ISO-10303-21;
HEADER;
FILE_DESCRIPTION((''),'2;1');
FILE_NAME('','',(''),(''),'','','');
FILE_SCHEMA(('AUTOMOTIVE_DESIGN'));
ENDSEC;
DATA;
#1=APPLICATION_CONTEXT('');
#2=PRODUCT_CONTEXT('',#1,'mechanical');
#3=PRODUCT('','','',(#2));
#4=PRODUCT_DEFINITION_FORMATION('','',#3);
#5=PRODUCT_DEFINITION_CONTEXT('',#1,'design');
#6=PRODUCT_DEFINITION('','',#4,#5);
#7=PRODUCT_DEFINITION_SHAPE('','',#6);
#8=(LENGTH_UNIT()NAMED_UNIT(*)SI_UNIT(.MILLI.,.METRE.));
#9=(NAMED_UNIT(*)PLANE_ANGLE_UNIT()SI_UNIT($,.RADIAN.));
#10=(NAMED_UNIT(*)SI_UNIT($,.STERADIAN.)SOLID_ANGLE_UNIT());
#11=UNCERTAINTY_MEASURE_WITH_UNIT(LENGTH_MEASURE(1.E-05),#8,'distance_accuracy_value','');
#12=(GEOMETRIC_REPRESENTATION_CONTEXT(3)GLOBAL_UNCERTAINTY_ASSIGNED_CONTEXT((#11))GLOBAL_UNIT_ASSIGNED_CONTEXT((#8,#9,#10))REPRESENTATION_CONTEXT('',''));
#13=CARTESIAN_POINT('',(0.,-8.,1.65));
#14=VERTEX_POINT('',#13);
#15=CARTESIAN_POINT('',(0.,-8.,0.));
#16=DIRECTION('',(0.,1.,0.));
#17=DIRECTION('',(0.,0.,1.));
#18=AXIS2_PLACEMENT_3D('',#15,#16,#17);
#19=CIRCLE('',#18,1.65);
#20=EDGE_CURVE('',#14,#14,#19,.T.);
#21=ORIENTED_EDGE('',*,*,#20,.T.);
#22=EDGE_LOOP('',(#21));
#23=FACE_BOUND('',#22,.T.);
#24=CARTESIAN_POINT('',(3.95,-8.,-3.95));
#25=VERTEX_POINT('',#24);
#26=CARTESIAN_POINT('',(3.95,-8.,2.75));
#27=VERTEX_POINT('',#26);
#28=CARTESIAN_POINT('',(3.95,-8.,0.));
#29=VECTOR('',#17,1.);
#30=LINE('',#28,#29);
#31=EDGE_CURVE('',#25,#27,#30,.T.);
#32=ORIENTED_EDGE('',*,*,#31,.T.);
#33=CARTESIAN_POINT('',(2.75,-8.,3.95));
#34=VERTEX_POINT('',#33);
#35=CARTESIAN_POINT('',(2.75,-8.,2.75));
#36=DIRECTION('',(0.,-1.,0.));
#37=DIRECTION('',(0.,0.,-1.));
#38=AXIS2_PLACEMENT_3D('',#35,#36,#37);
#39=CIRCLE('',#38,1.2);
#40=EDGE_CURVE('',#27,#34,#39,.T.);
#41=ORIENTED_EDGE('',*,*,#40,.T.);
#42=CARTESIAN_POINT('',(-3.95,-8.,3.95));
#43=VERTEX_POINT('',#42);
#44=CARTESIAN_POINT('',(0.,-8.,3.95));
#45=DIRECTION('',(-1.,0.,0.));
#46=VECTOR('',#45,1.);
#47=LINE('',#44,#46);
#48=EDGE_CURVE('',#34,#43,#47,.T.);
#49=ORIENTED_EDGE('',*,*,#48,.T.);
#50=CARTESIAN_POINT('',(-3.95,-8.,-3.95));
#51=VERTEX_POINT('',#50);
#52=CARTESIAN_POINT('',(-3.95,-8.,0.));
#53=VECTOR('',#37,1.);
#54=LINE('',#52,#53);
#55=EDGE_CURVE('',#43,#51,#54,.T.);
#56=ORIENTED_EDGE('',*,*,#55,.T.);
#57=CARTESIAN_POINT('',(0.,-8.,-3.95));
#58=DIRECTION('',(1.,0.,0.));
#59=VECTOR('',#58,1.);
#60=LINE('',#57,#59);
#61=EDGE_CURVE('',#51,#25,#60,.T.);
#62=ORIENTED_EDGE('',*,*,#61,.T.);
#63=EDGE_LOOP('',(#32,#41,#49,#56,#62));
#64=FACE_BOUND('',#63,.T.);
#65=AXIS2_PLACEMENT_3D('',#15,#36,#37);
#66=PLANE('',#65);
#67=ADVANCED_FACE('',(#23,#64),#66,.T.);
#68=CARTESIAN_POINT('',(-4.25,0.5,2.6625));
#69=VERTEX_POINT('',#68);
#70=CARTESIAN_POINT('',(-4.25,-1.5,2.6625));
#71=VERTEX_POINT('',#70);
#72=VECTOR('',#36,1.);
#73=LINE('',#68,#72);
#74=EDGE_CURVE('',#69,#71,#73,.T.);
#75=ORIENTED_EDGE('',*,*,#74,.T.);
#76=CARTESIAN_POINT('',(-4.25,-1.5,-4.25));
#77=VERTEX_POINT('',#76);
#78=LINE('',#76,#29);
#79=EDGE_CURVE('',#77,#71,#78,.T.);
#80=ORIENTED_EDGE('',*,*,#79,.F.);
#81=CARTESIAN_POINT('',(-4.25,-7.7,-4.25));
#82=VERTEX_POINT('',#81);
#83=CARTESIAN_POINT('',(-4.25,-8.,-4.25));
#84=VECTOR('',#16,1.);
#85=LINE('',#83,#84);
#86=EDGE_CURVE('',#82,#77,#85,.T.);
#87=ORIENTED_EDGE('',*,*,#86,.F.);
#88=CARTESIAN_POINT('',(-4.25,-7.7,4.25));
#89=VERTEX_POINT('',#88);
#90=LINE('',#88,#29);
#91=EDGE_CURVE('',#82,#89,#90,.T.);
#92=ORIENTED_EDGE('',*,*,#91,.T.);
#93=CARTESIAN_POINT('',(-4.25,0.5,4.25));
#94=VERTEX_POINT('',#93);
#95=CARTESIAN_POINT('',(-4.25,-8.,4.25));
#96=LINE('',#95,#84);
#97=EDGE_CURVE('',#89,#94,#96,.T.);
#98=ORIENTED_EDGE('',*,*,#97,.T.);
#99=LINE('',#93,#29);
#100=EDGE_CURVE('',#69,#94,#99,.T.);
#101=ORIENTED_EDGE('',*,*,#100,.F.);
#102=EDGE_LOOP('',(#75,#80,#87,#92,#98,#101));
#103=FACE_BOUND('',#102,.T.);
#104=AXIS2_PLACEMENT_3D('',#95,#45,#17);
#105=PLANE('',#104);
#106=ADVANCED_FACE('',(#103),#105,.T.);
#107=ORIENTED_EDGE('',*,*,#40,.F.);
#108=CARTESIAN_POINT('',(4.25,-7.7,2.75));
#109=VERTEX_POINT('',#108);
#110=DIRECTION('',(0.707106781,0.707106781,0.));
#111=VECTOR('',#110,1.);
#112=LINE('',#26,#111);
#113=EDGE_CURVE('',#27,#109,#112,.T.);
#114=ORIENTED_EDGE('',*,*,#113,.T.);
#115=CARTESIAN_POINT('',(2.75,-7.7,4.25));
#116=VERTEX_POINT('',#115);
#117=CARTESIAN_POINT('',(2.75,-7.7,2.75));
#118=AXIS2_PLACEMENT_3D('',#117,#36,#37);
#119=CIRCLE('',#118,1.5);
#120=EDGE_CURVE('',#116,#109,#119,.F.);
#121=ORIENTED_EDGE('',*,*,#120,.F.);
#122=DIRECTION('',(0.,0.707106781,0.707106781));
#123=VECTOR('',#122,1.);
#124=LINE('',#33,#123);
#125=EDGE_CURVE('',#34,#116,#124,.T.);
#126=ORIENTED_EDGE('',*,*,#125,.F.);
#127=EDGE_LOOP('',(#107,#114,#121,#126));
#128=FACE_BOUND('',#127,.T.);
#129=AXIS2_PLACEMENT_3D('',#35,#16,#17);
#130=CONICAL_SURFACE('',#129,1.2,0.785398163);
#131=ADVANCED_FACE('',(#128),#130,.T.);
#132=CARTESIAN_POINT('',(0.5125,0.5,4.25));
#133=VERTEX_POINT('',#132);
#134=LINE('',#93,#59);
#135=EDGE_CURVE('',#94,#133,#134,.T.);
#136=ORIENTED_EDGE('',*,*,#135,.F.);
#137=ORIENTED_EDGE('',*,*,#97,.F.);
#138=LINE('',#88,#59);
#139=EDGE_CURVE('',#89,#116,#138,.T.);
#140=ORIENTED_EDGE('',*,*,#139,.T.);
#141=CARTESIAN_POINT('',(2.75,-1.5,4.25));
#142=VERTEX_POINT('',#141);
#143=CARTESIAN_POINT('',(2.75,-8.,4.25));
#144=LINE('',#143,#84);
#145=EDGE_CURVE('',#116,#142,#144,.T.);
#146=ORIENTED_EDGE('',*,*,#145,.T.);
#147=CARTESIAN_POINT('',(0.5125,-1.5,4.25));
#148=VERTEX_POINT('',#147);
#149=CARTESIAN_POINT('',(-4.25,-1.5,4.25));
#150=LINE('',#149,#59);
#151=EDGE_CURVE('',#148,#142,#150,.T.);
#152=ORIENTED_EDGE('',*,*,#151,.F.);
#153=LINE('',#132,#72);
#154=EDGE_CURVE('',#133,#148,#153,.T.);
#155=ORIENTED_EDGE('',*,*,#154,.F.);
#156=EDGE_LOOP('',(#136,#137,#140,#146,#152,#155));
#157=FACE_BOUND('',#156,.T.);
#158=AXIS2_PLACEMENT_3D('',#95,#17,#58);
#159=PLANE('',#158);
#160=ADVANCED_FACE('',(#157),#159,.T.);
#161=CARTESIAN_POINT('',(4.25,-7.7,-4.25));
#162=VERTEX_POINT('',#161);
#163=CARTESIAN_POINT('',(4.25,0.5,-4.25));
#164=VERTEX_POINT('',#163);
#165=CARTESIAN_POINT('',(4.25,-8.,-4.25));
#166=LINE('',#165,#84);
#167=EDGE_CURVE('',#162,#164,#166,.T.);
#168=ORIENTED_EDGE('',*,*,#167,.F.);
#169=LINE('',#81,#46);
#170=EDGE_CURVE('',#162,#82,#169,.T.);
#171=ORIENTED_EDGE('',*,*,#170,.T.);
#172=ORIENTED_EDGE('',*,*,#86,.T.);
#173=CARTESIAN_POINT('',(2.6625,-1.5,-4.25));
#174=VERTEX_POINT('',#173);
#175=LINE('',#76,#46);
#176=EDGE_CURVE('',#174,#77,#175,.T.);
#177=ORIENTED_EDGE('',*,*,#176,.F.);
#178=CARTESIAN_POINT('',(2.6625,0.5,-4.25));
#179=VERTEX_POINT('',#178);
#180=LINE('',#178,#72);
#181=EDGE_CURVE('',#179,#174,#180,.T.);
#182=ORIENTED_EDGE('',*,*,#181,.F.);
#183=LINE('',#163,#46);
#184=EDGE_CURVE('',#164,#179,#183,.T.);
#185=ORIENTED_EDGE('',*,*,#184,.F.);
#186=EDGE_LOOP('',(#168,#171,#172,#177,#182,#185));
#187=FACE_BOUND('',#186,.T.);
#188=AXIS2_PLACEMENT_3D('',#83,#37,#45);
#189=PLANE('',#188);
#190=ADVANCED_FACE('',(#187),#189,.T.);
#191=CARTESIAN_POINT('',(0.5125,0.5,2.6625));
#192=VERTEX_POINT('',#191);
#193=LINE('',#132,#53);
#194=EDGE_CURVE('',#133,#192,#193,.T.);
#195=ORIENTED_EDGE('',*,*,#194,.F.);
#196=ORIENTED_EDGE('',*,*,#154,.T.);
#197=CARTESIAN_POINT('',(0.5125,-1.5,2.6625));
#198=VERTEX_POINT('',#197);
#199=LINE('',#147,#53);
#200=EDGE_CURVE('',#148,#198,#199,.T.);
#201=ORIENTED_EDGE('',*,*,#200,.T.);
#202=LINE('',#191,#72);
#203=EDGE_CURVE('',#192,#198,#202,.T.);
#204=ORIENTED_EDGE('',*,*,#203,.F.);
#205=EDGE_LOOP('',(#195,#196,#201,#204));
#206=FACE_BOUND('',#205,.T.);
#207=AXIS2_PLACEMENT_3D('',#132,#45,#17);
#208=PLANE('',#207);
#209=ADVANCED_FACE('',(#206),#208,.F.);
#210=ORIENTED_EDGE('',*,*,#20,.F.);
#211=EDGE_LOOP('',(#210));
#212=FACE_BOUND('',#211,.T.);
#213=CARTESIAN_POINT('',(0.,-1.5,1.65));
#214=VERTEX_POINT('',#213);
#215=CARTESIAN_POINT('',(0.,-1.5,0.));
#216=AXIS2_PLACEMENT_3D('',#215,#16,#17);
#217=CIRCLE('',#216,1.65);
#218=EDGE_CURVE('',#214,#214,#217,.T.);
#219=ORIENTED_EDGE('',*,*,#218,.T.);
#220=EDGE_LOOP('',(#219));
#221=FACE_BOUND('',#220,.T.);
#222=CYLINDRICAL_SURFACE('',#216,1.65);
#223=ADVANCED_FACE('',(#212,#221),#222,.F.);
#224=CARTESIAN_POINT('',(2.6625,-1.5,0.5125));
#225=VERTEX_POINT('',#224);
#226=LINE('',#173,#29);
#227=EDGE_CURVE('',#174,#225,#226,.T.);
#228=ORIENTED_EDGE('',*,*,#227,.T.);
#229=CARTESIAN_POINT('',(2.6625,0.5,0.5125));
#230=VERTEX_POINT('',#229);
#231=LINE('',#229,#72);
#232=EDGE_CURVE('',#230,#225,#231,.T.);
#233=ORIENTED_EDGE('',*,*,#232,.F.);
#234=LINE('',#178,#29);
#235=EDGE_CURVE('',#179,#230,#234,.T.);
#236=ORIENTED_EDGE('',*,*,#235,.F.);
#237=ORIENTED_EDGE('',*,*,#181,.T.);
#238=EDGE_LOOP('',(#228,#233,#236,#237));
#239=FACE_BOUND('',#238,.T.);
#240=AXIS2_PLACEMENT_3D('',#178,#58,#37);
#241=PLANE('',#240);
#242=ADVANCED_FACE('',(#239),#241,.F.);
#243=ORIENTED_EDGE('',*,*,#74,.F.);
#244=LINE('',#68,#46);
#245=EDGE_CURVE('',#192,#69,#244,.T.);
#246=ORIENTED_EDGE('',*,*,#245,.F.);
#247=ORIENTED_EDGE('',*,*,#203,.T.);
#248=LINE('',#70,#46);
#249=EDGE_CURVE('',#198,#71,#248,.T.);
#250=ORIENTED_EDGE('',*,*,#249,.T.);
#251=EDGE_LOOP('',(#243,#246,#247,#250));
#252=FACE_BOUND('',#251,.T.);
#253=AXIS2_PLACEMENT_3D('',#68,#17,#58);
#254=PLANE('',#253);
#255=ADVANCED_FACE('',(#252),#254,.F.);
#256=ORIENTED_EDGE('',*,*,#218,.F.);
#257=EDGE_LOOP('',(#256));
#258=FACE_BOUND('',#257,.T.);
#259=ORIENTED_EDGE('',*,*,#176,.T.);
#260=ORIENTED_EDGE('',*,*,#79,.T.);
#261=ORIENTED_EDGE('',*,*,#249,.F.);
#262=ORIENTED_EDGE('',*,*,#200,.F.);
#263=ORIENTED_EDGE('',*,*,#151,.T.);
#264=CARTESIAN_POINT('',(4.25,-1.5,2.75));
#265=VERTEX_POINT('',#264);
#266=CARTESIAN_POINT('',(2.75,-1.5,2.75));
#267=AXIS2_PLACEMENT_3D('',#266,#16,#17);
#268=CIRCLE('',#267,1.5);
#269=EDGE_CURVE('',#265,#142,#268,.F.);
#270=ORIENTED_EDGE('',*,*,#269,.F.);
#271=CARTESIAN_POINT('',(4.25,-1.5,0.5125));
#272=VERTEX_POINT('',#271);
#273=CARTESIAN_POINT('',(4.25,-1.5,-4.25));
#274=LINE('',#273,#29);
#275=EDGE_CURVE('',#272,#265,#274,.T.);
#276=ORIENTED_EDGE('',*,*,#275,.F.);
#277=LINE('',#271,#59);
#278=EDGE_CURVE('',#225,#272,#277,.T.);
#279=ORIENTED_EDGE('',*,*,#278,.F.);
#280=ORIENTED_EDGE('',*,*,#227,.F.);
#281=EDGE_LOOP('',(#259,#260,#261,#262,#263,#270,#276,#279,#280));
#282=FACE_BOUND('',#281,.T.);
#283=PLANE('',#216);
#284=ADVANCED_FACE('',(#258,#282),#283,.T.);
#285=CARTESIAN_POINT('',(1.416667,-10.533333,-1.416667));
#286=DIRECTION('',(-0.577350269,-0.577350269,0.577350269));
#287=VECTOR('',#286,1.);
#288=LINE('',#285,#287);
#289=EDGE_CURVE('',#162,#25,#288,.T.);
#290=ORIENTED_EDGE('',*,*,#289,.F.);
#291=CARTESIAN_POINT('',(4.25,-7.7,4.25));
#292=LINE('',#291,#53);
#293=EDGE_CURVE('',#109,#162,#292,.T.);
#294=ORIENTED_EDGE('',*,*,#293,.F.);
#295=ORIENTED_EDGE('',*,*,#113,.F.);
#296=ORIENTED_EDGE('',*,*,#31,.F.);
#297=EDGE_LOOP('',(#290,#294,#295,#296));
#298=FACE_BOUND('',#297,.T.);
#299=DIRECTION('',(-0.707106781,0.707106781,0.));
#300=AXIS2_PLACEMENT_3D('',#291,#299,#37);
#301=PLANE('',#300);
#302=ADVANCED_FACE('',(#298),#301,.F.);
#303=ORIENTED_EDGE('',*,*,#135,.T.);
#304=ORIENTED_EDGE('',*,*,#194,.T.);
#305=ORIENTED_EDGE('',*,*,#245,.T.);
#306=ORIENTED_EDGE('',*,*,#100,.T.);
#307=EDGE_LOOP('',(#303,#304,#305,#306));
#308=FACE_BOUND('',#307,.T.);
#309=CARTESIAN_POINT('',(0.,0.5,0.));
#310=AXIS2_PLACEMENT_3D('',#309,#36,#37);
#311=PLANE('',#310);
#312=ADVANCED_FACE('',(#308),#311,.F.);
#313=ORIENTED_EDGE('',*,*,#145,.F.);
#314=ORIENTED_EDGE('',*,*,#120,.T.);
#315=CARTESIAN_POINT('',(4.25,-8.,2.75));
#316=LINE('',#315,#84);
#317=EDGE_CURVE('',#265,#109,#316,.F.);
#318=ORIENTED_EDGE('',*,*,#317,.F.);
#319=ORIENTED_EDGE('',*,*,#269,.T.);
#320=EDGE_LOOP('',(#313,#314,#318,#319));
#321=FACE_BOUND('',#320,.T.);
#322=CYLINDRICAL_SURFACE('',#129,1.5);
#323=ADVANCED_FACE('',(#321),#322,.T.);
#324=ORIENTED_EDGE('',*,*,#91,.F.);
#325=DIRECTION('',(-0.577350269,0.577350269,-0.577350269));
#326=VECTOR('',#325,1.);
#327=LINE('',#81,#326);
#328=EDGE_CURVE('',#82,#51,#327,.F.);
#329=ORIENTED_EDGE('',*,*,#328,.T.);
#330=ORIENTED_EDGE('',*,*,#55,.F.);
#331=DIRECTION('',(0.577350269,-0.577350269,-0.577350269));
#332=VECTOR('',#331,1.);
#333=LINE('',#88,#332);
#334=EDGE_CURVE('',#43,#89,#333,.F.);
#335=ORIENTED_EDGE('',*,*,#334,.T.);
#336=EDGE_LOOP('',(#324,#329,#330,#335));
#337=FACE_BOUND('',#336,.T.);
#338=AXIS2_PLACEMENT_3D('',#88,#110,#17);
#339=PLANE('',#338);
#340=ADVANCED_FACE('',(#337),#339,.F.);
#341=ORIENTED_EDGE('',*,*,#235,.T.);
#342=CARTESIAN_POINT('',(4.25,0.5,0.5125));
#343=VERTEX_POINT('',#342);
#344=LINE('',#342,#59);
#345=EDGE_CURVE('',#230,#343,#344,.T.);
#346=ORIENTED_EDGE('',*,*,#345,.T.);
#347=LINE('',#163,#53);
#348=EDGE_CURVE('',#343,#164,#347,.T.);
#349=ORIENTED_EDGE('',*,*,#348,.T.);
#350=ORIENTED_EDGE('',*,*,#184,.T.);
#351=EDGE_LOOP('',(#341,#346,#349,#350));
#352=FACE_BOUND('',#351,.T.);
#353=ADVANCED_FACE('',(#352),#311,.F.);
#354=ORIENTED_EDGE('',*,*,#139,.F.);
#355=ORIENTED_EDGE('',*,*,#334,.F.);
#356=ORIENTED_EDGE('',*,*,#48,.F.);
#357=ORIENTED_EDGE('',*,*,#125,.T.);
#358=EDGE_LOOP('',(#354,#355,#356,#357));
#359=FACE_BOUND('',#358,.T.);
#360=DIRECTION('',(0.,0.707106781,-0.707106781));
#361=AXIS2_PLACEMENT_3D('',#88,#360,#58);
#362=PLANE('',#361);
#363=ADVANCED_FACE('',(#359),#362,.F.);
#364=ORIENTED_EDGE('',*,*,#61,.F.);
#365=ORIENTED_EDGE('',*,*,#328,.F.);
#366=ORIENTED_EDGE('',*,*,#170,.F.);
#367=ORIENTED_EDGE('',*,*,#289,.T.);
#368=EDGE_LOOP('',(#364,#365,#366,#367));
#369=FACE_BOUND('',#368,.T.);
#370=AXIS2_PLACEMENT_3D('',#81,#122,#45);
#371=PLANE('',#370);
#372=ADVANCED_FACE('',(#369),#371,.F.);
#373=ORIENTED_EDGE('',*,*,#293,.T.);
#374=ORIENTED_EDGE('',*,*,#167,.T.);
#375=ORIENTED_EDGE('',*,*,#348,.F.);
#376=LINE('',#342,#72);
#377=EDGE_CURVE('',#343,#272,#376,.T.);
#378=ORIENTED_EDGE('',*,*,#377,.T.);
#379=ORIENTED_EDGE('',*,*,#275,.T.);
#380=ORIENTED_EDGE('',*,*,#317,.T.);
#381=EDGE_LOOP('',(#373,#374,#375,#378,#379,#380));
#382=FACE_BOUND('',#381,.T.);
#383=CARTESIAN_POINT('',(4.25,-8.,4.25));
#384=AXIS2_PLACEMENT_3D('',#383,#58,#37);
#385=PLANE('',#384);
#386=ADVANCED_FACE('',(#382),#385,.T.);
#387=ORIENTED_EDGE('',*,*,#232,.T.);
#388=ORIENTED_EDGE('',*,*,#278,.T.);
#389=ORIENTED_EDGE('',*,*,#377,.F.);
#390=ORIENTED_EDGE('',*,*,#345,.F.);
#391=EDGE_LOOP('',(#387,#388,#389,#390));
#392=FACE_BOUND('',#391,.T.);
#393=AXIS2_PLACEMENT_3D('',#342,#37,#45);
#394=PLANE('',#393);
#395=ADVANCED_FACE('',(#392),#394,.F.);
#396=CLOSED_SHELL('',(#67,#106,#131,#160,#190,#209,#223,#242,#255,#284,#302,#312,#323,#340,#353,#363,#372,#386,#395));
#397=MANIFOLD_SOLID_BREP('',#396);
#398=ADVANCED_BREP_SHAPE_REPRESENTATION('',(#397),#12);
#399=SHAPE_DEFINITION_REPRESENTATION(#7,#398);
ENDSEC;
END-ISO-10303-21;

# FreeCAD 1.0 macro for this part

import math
import FreeCAD as App
import Part
import Sketcher

V = App.Vector
Q = App.Units.Quantity


def edges_at(feature, points):
    """Names of the edges that pass closest to the given points."""
    edges = feature.Shape.Edges
    near = lambda p: min(range(len(edges)), key=lambda i: edges[i].distToShape(Part.Vertex(*p))[0])
    return sorted({f"Edge{near(p) + 1}" for p in points})


def add_polygon(sketch, points):
    """Adds a closed chain of lines whose ends are joined by coincident constraints."""
    first, n = sketch.GeometryCount, len(points)
    for a, b in zip(points, points[1:] + points[:1]):
        sketch.addGeometry(Part.LineSegment(App.Vector(*a, 0), App.Vector(*b, 0)), False)
    for i in range(n):
        sketch.addConstraint(Sketcher.Constraint("Coincident", first + i, 2, first + (i + 1) % n, 1))

doc = App.newDocument("Part")
body = doc.addObject("PartDesign::Body", "Body")

sketch1 = body.newObject("Sketcher::SketchObject", "Sketch")
sketch1.AttachmentSupport = (doc.getObject("XZ_Plane"), [""])
sketch1.MapMode = "FlatFace"
add_polygon(sketch1, [(-4, -4), (-4, 4), (4, 4), (4, -4)])
sketch1.addConstraint([
    Sketcher.Constraint("Vertical", 0),
    Sketcher.Constraint("Horizontal", 1),
    Sketcher.Constraint("Vertical", 2),
    Sketcher.Constraint("Horizontal", 3),
    Sketcher.Constraint("Symmetric", 0, 2, 2, 2, -1, 1),
    Sketcher.Constraint("Equal", 3, 0),
    Sketcher.Constraint("DistanceX", 1, 1, 1, 2, Q("8.5 mm")),
])
pad1 = body.newObject("PartDesign::Pad", "Pad")
pad1.Profile = sketch1
pad1.Length = 8

sketch2 = body.newObject("Sketcher::SketchObject", "Sketch001")
sketch2.AttachmentSupport = (doc.getObject("XZ_Plane"), [""])
sketch2.MapMode = "FlatFace"
add_polygon(sketch2, [(-4, -4), (-4, 3), (3, 3), (3, -4)])
sketch2.addConstraint([
    Sketcher.Constraint("Vertical", 0),
    Sketcher.Constraint("Horizontal", 1),
    Sketcher.Constraint("Vertical", 2),
    Sketcher.Constraint("Horizontal", 3),
    Sketcher.Constraint("Equal", 3, 0),
    Sketcher.Constraint("DistanceX", 1, 1, 1, 2, Q("7 mm")),
    Sketcher.Constraint("DistanceX", 0, 2, -1, 1, Q("4.25 mm")),
    Sketcher.Constraint("DistanceY", -1, 1, 0, 2, Q("2.75 mm")),
])
pocket1 = body.newObject("PartDesign::Pocket", "Pocket")
pocket1.Profile = sketch2
pocket1.Length = 1.5
pocket1.Reversed = True

sketch3 = body.newObject("Sketcher::SketchObject", "Sketch002")
sketch3.AttachmentSupport = (doc.getObject("YZ_Plane"), [""])
sketch3.MapMode = "FlatFace"
sketch3.AttachmentOffset = App.Placement(V(0, 0, 2.75), App.Rotation())
add_polygon(sketch3, [(0, -4.2), (-1.5, -4.2), (-1.5, -2.8), (0, -2.8)])
sketch3.addConstraint([
    Sketcher.Constraint("Horizontal", 0),
    Sketcher.Constraint("Vertical", 1),
    Sketcher.Constraint("Horizontal", 2),
    Sketcher.Constraint("Vertical", 3),
    Sketcher.Constraint("PointOnObject", 2, 2, -2),
    Sketcher.Constraint("Equal", 2, 1),
    Sketcher.Constraint("DistanceX", 0, 2, 0, 1, Q("1.5 mm")),
    Sketcher.Constraint("DistanceY", 0, 2, -1, 1, Q("4.25 mm")),
])
pocket2 = body.newObject("PartDesign::Pocket", "Pocket001")
pocket2.Profile = sketch3
pocket2.Type = "ThroughAll"
pocket2.Reversed = True
doc.recompute()

datumplane = body.newObject("PartDesign::Plane", "DatumPlane")
datumplane.Placement = App.Placement(V(0, 0, 0), App.Rotation(V(0.707106781, 0, 0.707106781), V(0, -1, 0), V(0.707106781, 0, -0.707106781), "ZXY"))
mirrored = body.newObject("PartDesign::Mirrored", "Mirrored")
mirrored.Originals = [pocket2]
mirrored.MirrorPlane = (datumplane, [""])
body.Tip = mirrored
doc.recompute()

fillet = body.newObject("PartDesign::Fillet", "Fillet")
fillet.Base = (mirrored, edges_at(mirrored, [(2.75, -0.75, 2.75)]))
fillet.Radius = 0.508
doc.recompute()

fillet2 = body.newObject("PartDesign::Fillet", "Fillet001")
fillet2.Base = (fillet, edges_at(fillet, [(4.25, -4, 4.25)]))
fillet2.Radius = 1.5

sketch4 = body.newObject("Sketcher::SketchObject", "Sketch003")
sketch4.AttachmentSupport = (doc.getObject("XZ_Plane"), [""])
sketch4.MapMode = "FlatFace"
sketch4.AttachmentOffset = App.Placement(V(0, 0, 1.5), App.Rotation())
sketch4.addGeometry(Part.Circle(V(0, 0, 0), V(0, 0, 1), 1.6), False)
sketch4.addConstraint([
    Sketcher.Constraint("Coincident", 0, 3, -1, 1),
    Sketcher.Constraint("Diameter", 0, Q("3.3 mm")),
])
doc.recompute()
hole = body.newObject("PartDesign::Hole", "Hole")
hole.Profile = sketch4
hole.ThreadType = "None"
hole.Diameter = 3.3
hole.DepthType = "ThroughAll"
hole.Reversed = True
doc.recompute()

chamfer = body.newObject("PartDesign::Chamfer", "Chamfer")
chamfer.Base = (hole, edges_at(hole, [
    (-4.25, -8, 0),
    (-0.75, -8, 4.25),
    (4.25, -8, -0.75),
    (3.811, -8, 3.811),
    (0, -8, -4.25),
]))
chamfer.Size = 0.3

sketch5 = body.newObject("Sketcher::SketchObject", "Sketch004")
sketch5.AttachmentSupport = (doc.getObject("XZ_Plane"), [""])
sketch5.MapMode = "FlatFace"
sketch5.AttachmentOffset = App.Placement(V(0, 0, 1.5), App.Rotation())
sketch5.addGeometry([
    Part.LineSegment(V(-2.8, 4.2, 0), V(2.8, 4.2, 0)),
    Part.ArcOfCircle(Part.Circle(V(2.8, 2.8, 0), V(0, 0, 1), 1.5), math.radians(0), math.radians(90)),
    Part.LineSegment(V(4.2, 2.8, 0), V(4.2, -2.8, 0)),
    Part.LineSegment(V(4.2, -2.8, 0), V(2.8, -2.8, 0)),
    Part.LineSegment(V(2.8, -2.8, 0), V(2.8, 2.2, 0)),
    Part.ArcOfCircle(Part.Circle(V(2.2, 2.2, 0), V(0, 0, 1), 0.5), math.radians(0), math.radians(90)),
    Part.LineSegment(V(2.2, 2.8, 0), V(-2.8, 2.8, 0)),
    Part.LineSegment(V(-2.8, 2.8, 0), V(-2.8, 4.2, 0)),
], False)
sketch5.addConstraint([
    Sketcher.Constraint("Tangent", 0, 2, 1, 2),
    Sketcher.Constraint("Tangent", 1, 1, 2, 1),
    Sketcher.Constraint("Coincident", 2, 2, 3, 1),
    Sketcher.Constraint("Coincident", 3, 2, 4, 1),
    Sketcher.Constraint("Tangent", 4, 2, 5, 1),
    Sketcher.Constraint("Tangent", 5, 2, 6, 1),
    Sketcher.Constraint("Coincident", 6, 2, 7, 1),
    Sketcher.Constraint("Coincident", 7, 2, 0, 1),
    Sketcher.Constraint("Horizontal", 0),
    Sketcher.Constraint("Vertical", 2),
    Sketcher.Constraint("Horizontal", 3),
    Sketcher.Constraint("Vertical", 4),
    Sketcher.Constraint("Horizontal", 6),
    Sketcher.Constraint("Vertical", 7),
    Sketcher.Constraint("Symmetric", 3, 2, 6, 2, -1, 1),
    Sketcher.Constraint("Horizontal", 1, 1, 5, 2),
    Sketcher.Constraint("Vertical", 0, 2, 3, 2),
    Sketcher.Constraint("Equal", 0, 2),
    Sketcher.Constraint("Radius", 1, Q("1.5 mm")),
    Sketcher.Constraint("DistanceX", 0, 1, 0, 2, Q("5.5 mm")),
    Sketcher.Constraint("Radius", 5, Q("0.508 mm")),
])
pocket3 = body.newObject("PartDesign::Pocket", "Pocket002")
pocket3.Profile = sketch5
pocket3.Length = 1.5

sketch6 = body.newObject("Sketcher::SketchObject", "Sketch005")
sketch6.AttachmentSupport = (doc.getObject("XZ_Plane"), [""])
sketch6.MapMode = "FlatFace"
sketch6.AttachmentOffset = App.Placement(V(0, 0, 1.5), App.Rotation())
add_polygon(sketch6, [(2.7, -4.2), (2.7, 0.5), (4.2, 0.5), (4.2, -4.2)])
add_polygon(sketch6, [(-4.2, 2.7), (-4.2, 4.2), (0.5, 4.2), (0.5, 2.7)])
sketch6.addConstraint([
    Sketcher.Constraint("Vertical", 0),
    Sketcher.Constraint("Horizontal", 1),
    Sketcher.Constraint("Vertical", 2),
    Sketcher.Constraint("Horizontal", 3),
    Sketcher.Constraint("Vertical", 4),
    Sketcher.Constraint("Horizontal", 5),
    Sketcher.Constraint("Vertical", 6),
    Sketcher.Constraint("Horizontal", 7),
    Sketcher.Constraint("Symmetric", 2, 2, 4, 2, -1, 1),
    Sketcher.Constraint("Equal", 7, 0),
    Sketcher.Constraint("Equal", 3, 4),
    Sketcher.Constraint("DistanceX", 4, 2, 1, 2, Q("8.5 mm")),
    Sketcher.Constraint("DistanceY", 3, 2, 4, 2, Q("8.5 mm")),
    Sketcher.Constraint("DistanceX", 5, 2, 0, 2, Q("2.15 mm")),
    Sketcher.Constraint("DistanceX", 1, 1, 1, 2, Q("1.5875 mm")),
])
pad2 = body.newObject("PartDesign::Pad", "Pad001")
pad2.Profile = sketch6
pad2.Length = 2
pad2.Reversed = True

doc.recompute()
